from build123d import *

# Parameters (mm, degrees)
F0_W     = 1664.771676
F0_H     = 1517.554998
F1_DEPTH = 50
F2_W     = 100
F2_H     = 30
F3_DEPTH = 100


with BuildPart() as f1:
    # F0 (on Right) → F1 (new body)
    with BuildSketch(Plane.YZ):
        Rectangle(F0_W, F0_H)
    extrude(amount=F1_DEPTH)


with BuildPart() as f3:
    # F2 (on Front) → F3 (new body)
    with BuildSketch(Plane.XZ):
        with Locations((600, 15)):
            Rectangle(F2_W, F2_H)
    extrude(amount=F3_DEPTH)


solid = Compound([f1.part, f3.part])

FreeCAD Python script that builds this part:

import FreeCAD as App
import Part
import Sketcher

V = App.Vector
Q = App.Units.Quantity


def add_polygon(sketch, points):
    """Adds a closed chain of lines whose ends are joined by coincident constraints."""
    first, n = sketch.GeometryCount, len(points)
    for a, b in zip(points, points[1:] + points[:1]):
        sketch.addGeometry(Part.LineSegment(App.Vector(*a, 0), App.Vector(*b, 0)), False)
    for i in range(n):
        sketch.addConstraint(Sketcher.Constraint("Coincident", first + i, 2, first + (i + 1) % n, 1))

doc = App.newDocument("Part")
body = doc.addObject("PartDesign::Body", "Body")

sketch1 = body.newObject("Sketcher::SketchObject", "Sketch")
sketch1.AttachmentSupport = (doc.getObject("YZ_Plane"), [""])
sketch1.MapMode = "FlatFace"
add_polygon(sketch1, [(-832, 759), (-832, -759), (832, -759), (832, 759)])
sketch1.addConstraint([
    Sketcher.Constraint("Vertical", 0),
    Sketcher.Constraint("Horizontal", 1),
    Sketcher.Constraint("Vertical", 2),
    Sketcher.Constraint("Horizontal", 3),
    Sketcher.Constraint("Symmetric", 0, 2, 2, 2, -1, 1),
    Sketcher.Constraint("DistanceY", 0, 2, 0, 1, Q("1517.554998 mm")),
    Sketcher.Constraint("DistanceX", 1, 1, 1, 2, Q("1664.771676 mm")),
])
pad1 = body.newObject("PartDesign::Pad", "Pad")
pad1.Profile = sketch1
pad1.Length = 50
body2 = doc.addObject("PartDesign::Body", "Body001")

sketch2 = body2.newObject("Sketcher::SketchObject", "Sketch001")
sketch2.AttachmentSupport = (doc.getObject("XZ_Plane001"), [""])
sketch2.MapMode = "FlatFace"
add_polygon(sketch2, [(550, 30), (550, 0), (650, 0), (650, 30)])
sketch2.addConstraint([
    Sketcher.Constraint("Vertical", 0),
    Sketcher.Constraint("Horizontal", 1),
    Sketcher.Constraint("Vertical", 2),
    Sketcher.Constraint("Horizontal", 3),
    Sketcher.Constraint("PointOnObject", 0, 2, -1),
    Sketcher.Constraint("DistanceX", 1, 1, 1, 2, Q("100 mm")),
    Sketcher.Constraint("DistanceY", 0, 2, 0, 1, Q("30 mm")),
    Sketcher.Constraint("DistanceX", -1, 1, 0, 2, Q("550 mm")),
])
pad2 = body2.newObject("PartDesign::Pad", "Pad001")
pad2.Profile = sketch2
pad2.Length = 100

doc.recompute()
